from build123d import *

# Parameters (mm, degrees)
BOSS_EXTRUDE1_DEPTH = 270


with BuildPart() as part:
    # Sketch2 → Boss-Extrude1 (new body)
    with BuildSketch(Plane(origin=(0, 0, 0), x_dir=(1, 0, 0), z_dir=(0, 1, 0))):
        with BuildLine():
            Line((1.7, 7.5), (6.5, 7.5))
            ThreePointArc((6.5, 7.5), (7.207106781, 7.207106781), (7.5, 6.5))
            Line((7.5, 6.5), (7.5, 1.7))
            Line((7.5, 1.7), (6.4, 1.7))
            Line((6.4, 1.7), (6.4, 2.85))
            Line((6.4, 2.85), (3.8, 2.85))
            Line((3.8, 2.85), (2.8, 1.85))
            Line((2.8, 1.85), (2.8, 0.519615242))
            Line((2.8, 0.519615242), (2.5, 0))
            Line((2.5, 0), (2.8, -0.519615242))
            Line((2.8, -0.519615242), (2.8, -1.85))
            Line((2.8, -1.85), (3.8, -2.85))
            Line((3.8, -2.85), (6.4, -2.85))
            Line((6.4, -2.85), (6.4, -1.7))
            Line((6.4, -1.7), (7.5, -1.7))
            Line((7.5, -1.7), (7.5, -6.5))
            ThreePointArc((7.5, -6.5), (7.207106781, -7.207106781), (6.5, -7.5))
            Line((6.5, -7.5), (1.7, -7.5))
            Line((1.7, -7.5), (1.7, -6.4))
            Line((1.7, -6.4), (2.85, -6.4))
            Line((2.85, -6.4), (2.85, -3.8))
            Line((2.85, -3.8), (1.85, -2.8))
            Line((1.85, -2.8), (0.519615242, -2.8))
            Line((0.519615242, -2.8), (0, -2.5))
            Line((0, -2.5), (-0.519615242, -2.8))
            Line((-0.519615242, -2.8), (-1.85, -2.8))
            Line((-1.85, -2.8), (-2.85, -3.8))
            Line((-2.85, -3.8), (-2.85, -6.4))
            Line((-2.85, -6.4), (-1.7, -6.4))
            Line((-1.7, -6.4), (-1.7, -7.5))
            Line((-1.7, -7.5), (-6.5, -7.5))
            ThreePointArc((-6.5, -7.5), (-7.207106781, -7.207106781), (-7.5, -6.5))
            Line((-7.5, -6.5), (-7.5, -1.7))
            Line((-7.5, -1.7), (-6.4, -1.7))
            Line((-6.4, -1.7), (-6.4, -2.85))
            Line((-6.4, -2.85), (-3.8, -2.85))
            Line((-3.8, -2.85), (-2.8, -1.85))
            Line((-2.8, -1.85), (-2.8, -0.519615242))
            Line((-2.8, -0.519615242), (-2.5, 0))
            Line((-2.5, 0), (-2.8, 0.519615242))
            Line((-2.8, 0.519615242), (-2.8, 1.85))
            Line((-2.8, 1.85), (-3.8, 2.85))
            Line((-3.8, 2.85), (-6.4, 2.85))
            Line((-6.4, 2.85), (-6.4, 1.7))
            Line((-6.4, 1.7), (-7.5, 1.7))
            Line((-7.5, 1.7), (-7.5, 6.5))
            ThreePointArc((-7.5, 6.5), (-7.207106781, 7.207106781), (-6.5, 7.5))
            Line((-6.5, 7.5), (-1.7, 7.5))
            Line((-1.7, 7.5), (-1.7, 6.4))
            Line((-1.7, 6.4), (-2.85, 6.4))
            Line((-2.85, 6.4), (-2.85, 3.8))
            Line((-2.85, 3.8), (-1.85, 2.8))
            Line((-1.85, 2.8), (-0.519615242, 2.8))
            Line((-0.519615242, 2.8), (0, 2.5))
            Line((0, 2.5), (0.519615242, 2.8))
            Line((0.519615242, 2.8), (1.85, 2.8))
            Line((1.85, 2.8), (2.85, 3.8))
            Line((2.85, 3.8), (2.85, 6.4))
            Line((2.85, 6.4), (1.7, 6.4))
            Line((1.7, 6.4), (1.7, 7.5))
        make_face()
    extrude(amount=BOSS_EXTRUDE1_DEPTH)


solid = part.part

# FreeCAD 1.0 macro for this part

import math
import FreeCAD as App
import Part
import Sketcher
Q = App.Units.Quantity

doc = App.newDocument("Part")
body = doc.addObject("PartDesign::Body", "Body")

# Sketch on XZ plane
sketch1 = doc.addObject("Sketcher::SketchObject", "Sketch")
body.addObject(sketch1)
sketch1.AttachmentSupport = (doc.XZ_Plane, [""])
sketch1.MapMode = "FlatFace"
sketch1.addGeometry([
    Part.LineSegment(App.Vector(6.5, -7.5, 0), App.Vector(1.7, -7.5, 0)),  # 0
    Part.LineSegment(App.Vector(1.7, -7.5, 0), App.Vector(1.7, -6.4, 0)),  # 1
    Part.LineSegment(App.Vector(1.7, -6.4, 0), App.Vector(2.85, -6.4, 0)),  # 2
    Part.LineSegment(App.Vector(2.85, -6.4, 0), App.Vector(2.85, -3.8, 0)),  # 3
    Part.LineSegment(App.Vector(2.85, -3.8, 0), App.Vector(1.85, -2.8, 0)),  # 4
    Part.LineSegment(App.Vector(1.85, -2.8, 0), App.Vector(0.519615, -2.8, 0)),  # 5
    Part.LineSegment(App.Vector(0.519615, -2.8, 0), App.Vector(0, -2.5, 0)),  # 6
    Part.LineSegment(App.Vector(0, -2.5, 0), App.Vector(-0.519615, -2.8, 0)),  # 7
    Part.LineSegment(App.Vector(-0.519615, -2.8, 0), App.Vector(-1.85, -2.8, 0)),  # 8
    Part.LineSegment(App.Vector(-1.85, -2.8, 0), App.Vector(-2.85, -3.8, 0)),  # 9
    Part.LineSegment(App.Vector(-2.85, -3.8, 0), App.Vector(-2.85, -6.4, 0)),  # 10
    Part.LineSegment(App.Vector(-2.85, -6.4, 0), App.Vector(-1.7, -6.4, 0)),  # 11
    Part.LineSegment(App.Vector(-1.7, -6.4, 0), App.Vector(-1.7, -7.5, 0)),  # 12
    Part.LineSegment(App.Vector(-1.7, -7.5, 0), App.Vector(-6.5, -7.5, 0)),  # 13
    Part.ArcOfCircle(Part.Circle(App.Vector(-6.5, -6.5, 0), App.Vector(0, 0, 1), 1), math.radians(-180), math.radians(-90)),  # 14
    Part.LineSegment(App.Vector(-7.5, -6.5, 0), App.Vector(-7.5, -1.7, 0)),  # 15
    Part.LineSegment(App.Vector(-7.5, -1.7, 0), App.Vector(-6.4, -1.7, 0)),  # 16
    Part.LineSegment(App.Vector(-6.4, -1.7, 0), App.Vector(-6.4, -2.85, 0)),  # 17
    Part.LineSegment(App.Vector(-6.4, -2.85, 0), App.Vector(-3.8, -2.85, 0)),  # 18
    Part.LineSegment(App.Vector(-3.8, -2.85, 0), App.Vector(-2.8, -1.85, 0)),  # 19
    Part.LineSegment(App.Vector(-2.8, -1.85, 0), App.Vector(-2.8, -0.519615, 0)),  # 20
    Part.LineSegment(App.Vector(-2.8, -0.519615, 0), App.Vector(-2.5, 0, 0)),  # 21
    Part.LineSegment(App.Vector(-2.5, 0, 0), App.Vector(-2.8, 0.519615, 0)),  # 22
    Part.LineSegment(App.Vector(-2.8, 0.519615, 0), App.Vector(-2.8, 1.85, 0)),  # 23
    Part.LineSegment(App.Vector(-2.8, 1.85, 0), App.Vector(-3.8, 2.85, 0)),  # 24
    Part.LineSegment(App.Vector(-3.8, 2.85, 0), App.Vector(-6.4, 2.85, 0)),  # 25
    Part.LineSegment(App.Vector(-6.4, 2.85, 0), App.Vector(-6.4, 1.7, 0)),  # 26
    Part.LineSegment(App.Vector(-6.4, 1.7, 0), App.Vector(-7.5, 1.7, 0)),  # 27
    Part.LineSegment(App.Vector(-7.5, 1.7, 0), App.Vector(-7.5, 6.5, 0)),  # 28
    Part.ArcOfCircle(Part.Circle(App.Vector(-6.5, 6.5, 0), App.Vector(0, 0, 1), 1), math.radians(90), math.radians(180)),  # 29
    Part.LineSegment(App.Vector(-6.5, 7.5, 0), App.Vector(-1.7, 7.5, 0)),  # 30
    Part.LineSegment(App.Vector(-1.7, 7.5, 0), App.Vector(-1.7, 6.4, 0)),  # 31
    Part.LineSegment(App.Vector(-1.7, 6.4, 0), App.Vector(-2.85, 6.4, 0)),  # 32
    Part.LineSegment(App.Vector(-2.85, 6.4, 0), App.Vector(-2.85, 3.8, 0)),  # 33
    Part.LineSegment(App.Vector(-2.85, 3.8, 0), App.Vector(-1.85, 2.8, 0)),  # 34
    Part.LineSegment(App.Vector(-1.85, 2.8, 0), App.Vector(-0.519615, 2.8, 0)),  # 35
    Part.LineSegment(App.Vector(-0.519615, 2.8, 0), App.Vector(0, 2.5, 0)),  # 36
    Part.LineSegment(App.Vector(0, 2.5, 0), App.Vector(0.519615, 2.8, 0)),  # 37
    Part.LineSegment(App.Vector(0.519615, 2.8, 0), App.Vector(1.85, 2.8, 0)),  # 38
    Part.LineSegment(App.Vector(1.85, 2.8, 0), App.Vector(2.85, 3.8, 0)),  # 39
    Part.LineSegment(App.Vector(2.85, 3.8, 0), App.Vector(2.85, 6.4, 0)),  # 40
    Part.LineSegment(App.Vector(2.85, 6.4, 0), App.Vector(1.7, 6.4, 0)),  # 41
    Part.LineSegment(App.Vector(1.7, 6.4, 0), App.Vector(1.7, 7.5, 0)),  # 42
    Part.LineSegment(App.Vector(1.7, 7.5, 0), App.Vector(6.5, 7.5, 0)),  # 43
    Part.ArcOfCircle(Part.Circle(App.Vector(6.5, 6.5, 0), App.Vector(0, 0, 1), 1), math.radians(0), math.radians(90)),  # 44
    Part.LineSegment(App.Vector(7.5, 6.5, 0), App.Vector(7.5, 1.7, 0)),  # 45
    Part.LineSegment(App.Vector(7.5, 1.7, 0), App.Vector(6.4, 1.7, 0)),  # 46
    Part.LineSegment(App.Vector(6.4, 1.7, 0), App.Vector(6.4, 2.85, 0)),  # 47
    Part.LineSegment(App.Vector(6.4, 2.85, 0), App.Vector(3.8, 2.85, 0)),  # 48
    Part.LineSegment(App.Vector(3.8, 2.85, 0), App.Vector(2.8, 1.85, 0)),  # 49
    Part.LineSegment(App.Vector(2.8, 1.85, 0), App.Vector(2.8, 0.519615, 0)),  # 50
    Part.LineSegment(App.Vector(2.8, 0.519615, 0), App.Vector(2.5, 0, 0)),  # 51
    Part.LineSegment(App.Vector(2.5, 0, 0), App.Vector(2.8, -0.519615, 0)),  # 52
    Part.LineSegment(App.Vector(2.8, -0.519615, 0), App.Vector(2.8, -1.85, 0)),  # 53
    Part.LineSegment(App.Vector(2.8, -1.85, 0), App.Vector(3.8, -2.85, 0)),  # 54
    Part.LineSegment(App.Vector(3.8, -2.85, 0), App.Vector(6.4, -2.85, 0)),  # 55
    Part.LineSegment(App.Vector(6.4, -2.85, 0), App.Vector(6.4, -1.7, 0)),  # 56
    Part.LineSegment(App.Vector(6.4, -1.7, 0), App.Vector(7.5, -1.7, 0)),  # 57
    Part.LineSegment(App.Vector(7.5, -1.7, 0), App.Vector(7.5, -6.5, 0)),  # 58
    Part.ArcOfCircle(Part.Circle(App.Vector(6.5, -6.5, 0), App.Vector(0, 0, 1), 1), math.radians(-90), math.radians(0)),  # 59
], False)
sketch1.addConstraint([
    Sketcher.Constraint("Coincident", 0, 2, 1, 1),
    Sketcher.Constraint("Coincident", 1, 2, 2, 1),
    Sketcher.Constraint("Coincident", 2, 2, 3, 1),
    Sketcher.Constraint("Coincident", 3, 2, 4, 1),
    Sketcher.Constraint("Coincident", 4, 2, 5, 1),
    Sketcher.Constraint("Coincident", 5, 2, 6, 1),
    Sketcher.Constraint("Coincident", 6, 2, 7, 1),
    Sketcher.Constraint("Coincident", 7, 2, 8, 1),
    Sketcher.Constraint("Coincident", 8, 2, 9, 1),
    Sketcher.Constraint("Coincident", 9, 2, 10, 1),
    Sketcher.Constraint("Coincident", 10, 2, 11, 1),
    Sketcher.Constraint("Coincident", 11, 2, 12, 1),
    Sketcher.Constraint("Coincident", 12, 2, 13, 1),
    Sketcher.Constraint("Tangent", 13, 2, 14, 2),
    Sketcher.Constraint("Tangent", 14, 1, 15, 1),
    Sketcher.Constraint("Coincident", 15, 2, 16, 1),
    Sketcher.Constraint("Coincident", 16, 2, 17, 1),
    Sketcher.Constraint("Coincident", 17, 2, 18, 1),
    Sketcher.Constraint("Coincident", 18, 2, 19, 1),
    Sketcher.Constraint("Coincident", 19, 2, 20, 1),
    Sketcher.Constraint("Coincident", 20, 2, 21, 1),
    Sketcher.Constraint("Coincident", 21, 2, 22, 1),
    Sketcher.Constraint("Coincident", 22, 2, 23, 1),
    Sketcher.Constraint("Coincident", 23, 2, 24, 1),
    Sketcher.Constraint("Coincident", 24, 2, 25, 1),
    Sketcher.Constraint("Coincident", 25, 2, 26, 1),
    Sketcher.Constraint("Coincident", 26, 2, 27, 1),
    Sketcher.Constraint("Coincident", 27, 2, 28, 1),
    Sketcher.Constraint("Tangent", 28, 2, 29, 2),
    Sketcher.Constraint("Tangent", 29, 1, 30, 1),
    Sketcher.Constraint("Coincident", 30, 2, 31, 1),
    Sketcher.Constraint("Coincident", 31, 2, 32, 1),
    Sketcher.Constraint("Coincident", 32, 2, 33, 1),
    Sketcher.Constraint("Coincident", 33, 2, 34, 1),
    Sketcher.Constraint("Coincident", 34, 2, 35, 1),
    Sketcher.Constraint("Coincident", 35, 2, 36, 1),
    Sketcher.Constraint("Coincident", 36, 2, 37, 1),
    Sketcher.Constraint("Coincident", 37, 2, 38, 1),
    Sketcher.Constraint("Coincident", 38, 2, 39, 1),
    Sketcher.Constraint("Coincident", 39, 2, 40, 1),
    Sketcher.Constraint("Coincident", 40, 2, 41, 1),
    Sketcher.Constraint("Coincident", 41, 2, 42, 1),
    Sketcher.Constraint("Coincident", 42, 2, 43, 1),
    Sketcher.Constraint("Tangent", 43, 2, 44, 2),
    Sketcher.Constraint("Tangent", 44, 1, 45, 1),
    Sketcher.Constraint("Coincident", 45, 2, 46, 1),
    Sketcher.Constraint("Coincident", 46, 2, 47, 1),
    Sketcher.Constraint("Coincident", 47, 2, 48, 1),
    Sketcher.Constraint("Coincident", 48, 2, 49, 1),
    Sketcher.Constraint("Coincident", 49, 2, 50, 1),
    Sketcher.Constraint("Coincident", 50, 2, 51, 1),
    Sketcher.Constraint("Coincident", 51, 2, 52, 1),
    Sketcher.Constraint("Coincident", 52, 2, 53, 1),
    Sketcher.Constraint("Coincident", 53, 2, 54, 1),
    Sketcher.Constraint("Coincident", 54, 2, 55, 1),
    Sketcher.Constraint("Coincident", 55, 2, 56, 1),
    Sketcher.Constraint("Coincident", 56, 2, 57, 1),
    Sketcher.Constraint("Coincident", 57, 2, 58, 1),
    Sketcher.Constraint("Tangent", 58, 2, 59, 2),
    Sketcher.Constraint("Tangent", 59, 1, 0, 1),
    Sketcher.Constraint("Horizontal", 0),
    Sketcher.Constraint("Vertical", 1),
    Sketcher.Constraint("Horizontal", 2),
    Sketcher.Constraint("Vertical", 3),
    Sketcher.Constraint("Horizontal", 5),
    Sketcher.Constraint("Horizontal", 8),
    Sketcher.Constraint("Vertical", 10),
    Sketcher.Constraint("Horizontal", 11),
    Sketcher.Constraint("Vertical", 12),
    Sketcher.Constraint("Horizontal", 13),
    Sketcher.Constraint("Vertical", 15),
    Sketcher.Constraint("Horizontal", 16),
    Sketcher.Constraint("Vertical", 17),
    Sketcher.Constraint("Horizontal", 18),
    Sketcher.Constraint("Vertical", 20),
    Sketcher.Constraint("Vertical", 23),
    Sketcher.Constraint("Horizontal", 25),
    Sketcher.Constraint("Vertical", 26),
    Sketcher.Constraint("Horizontal", 27),
    Sketcher.Constraint("Vertical", 28),
    Sketcher.Constraint("Horizontal", 30),
    Sketcher.Constraint("Vertical", 31),
    Sketcher.Constraint("Horizontal", 32),
    Sketcher.Constraint("Vertical", 33),
    Sketcher.Constraint("Horizontal", 35),
    Sketcher.Constraint("Horizontal", 38),
    Sketcher.Constraint("Vertical", 40),
    Sketcher.Constraint("Horizontal", 41),
    Sketcher.Constraint("Vertical", 42),
    Sketcher.Constraint("Horizontal", 43),
    Sketcher.Constraint("Vertical", 45),
    Sketcher.Constraint("Horizontal", 46),
    Sketcher.Constraint("Vertical", 47),
    Sketcher.Constraint("Horizontal", 48),
    Sketcher.Constraint("Vertical", 50),
    Sketcher.Constraint("Vertical", 53),
    Sketcher.Constraint("Horizontal", 55),
    Sketcher.Constraint("Vertical", 56),
    Sketcher.Constraint("Horizontal", 57),
    Sketcher.Constraint("Vertical", 58),
    Sketcher.Constraint("Equal", 14, 29),
    Sketcher.Constraint("Equal", 29, 44),
    Sketcher.Constraint("Equal", 44, 59),
    Sketcher.Constraint("Symmetric", 14, 3, 44, 3, -1, 1),
    Sketcher.Constraint("Symmetric", 29, 3, 59, 3, -1, 1),
    Sketcher.Constraint("Symmetric", 1, 2, 31, 2, -1, 1),
    Sketcher.Constraint("Symmetric", 3, 2, 33, 2, -1, 1),
    Sketcher.Constraint("Symmetric", 4, 2, 34, 2, -1, 1),
    Sketcher.Constraint("Symmetric", 6, 2, 36, 2, -1, 1),
    Sketcher.Constraint("Symmetric", 7, 2, 37, 2, -1, 1),
    Sketcher.Constraint("Symmetric", 9, 2, 39, 2, -1, 1),
    Sketcher.Constraint("Symmetric", 11, 2, 41, 2, -1, 1),
    Sketcher.Constraint("Symmetric", 16, 2, 46, 2, -1, 1),
    Sketcher.Constraint("Symmetric", 18, 2, 48, 2, -1, 1),
    Sketcher.Constraint("Symmetric", 19, 2, 49, 2, -1, 1),
    Sketcher.Constraint("Symmetric", 21, 2, 51, 2, -1, 1),
    Sketcher.Constraint("Symmetric", 22, 2, 52, 2, -1, 1),
    Sketcher.Constraint("Symmetric", 24, 2, 54, 2, -1, 1),
    Sketcher.Constraint("Symmetric", 26, 2, 56, 2, -1, 1),
    Sketcher.Constraint("Symmetric", 29, 3, 44, 3, -2),
    Sketcher.Constraint("Symmetric", 5, 2, 7, 2, -2),
    Sketcher.Constraint("Symmetric", 3, 2, 9, 2, -2),
    Sketcher.Constraint("Symmetric", 1, 2, 11, 2, -2),
    Sketcher.Constraint("Symmetric", 26, 2, 46, 2, -2),
    Sketcher.Constraint("Symmetric", 24, 2, 48, 2, -2),
    Sketcher.Constraint("Symmetric", 23, 2, 49, 2, -2),
    Sketcher.Constraint("PointOnObject", 6, 2, -2),
    Sketcher.Constraint("PointOnObject", 21, 2, -1),
    Sketcher.Constraint("Perpendicular", 4, 9),
    Sketcher.Constraint("Parallel", 9, 19),
    Sketcher.Constraint("Perpendicular", 6, 21),
    Sketcher.Constraint("Perpendicular", 7, 22),
    Sketcher.Constraint("Perpendicular", 19, 24),
    Sketcher.Constraint("Perpendicular", 21, 36),
    Sketcher.Constraint("Perpendicular", 34, 39),
    Sketcher.Constraint("Perpendicular", 36, 51),
    Sketcher.Constraint("Perpendicular", 49, 54),
    Sketcher.Constraint("Equal", 57, 1),
    Sketcher.Constraint("Equal", 55, 3),
    Sketcher.Constraint("Equal", 43, 15),
    Sketcher.Constraint("Equal", 41, 17),
    Sketcher.Constraint("Equal", 38, 20),
    Sketcher.Constraint("Equal", 9, 19),
    Sketcher.Constraint("Equal", 7, 21),
    Sketcher.Constraint("Radius", 14, Q("1 mm")),
    Sketcher.Constraint("Angle", 6, Q("150 deg")),
    Sketcher.Constraint("DistanceX", 0, 2, 0, 1, Q("4.8 mm")),
    Sketcher.Constraint("DistanceX", 16, 1, 16, 2, Q("1.1 mm")),
    Sketcher.Constraint("DistanceX", 18, 1, 18, 2, Q("2.6 mm")),
    Sketcher.Constraint("Distance", 6, Q("0.6 mm")),
    Sketcher.Constraint("DistanceX", 2, 1, 2, 2, Q("1.15 mm")),
    Sketcher.Constraint("DistanceX", 14, 3, -1, 1, Q("6.5 mm")),
    Sketcher.Constraint("DistanceY", 4, 2, -1, 1, Q("2.8 mm")),
])
pad1 = doc.addObject("PartDesign::Pad", "Pad")
body.addObject(pad1)
pad1.Profile = sketch1
pad1.Length = 270
pad1.Reversed = True

doc.recompute()
